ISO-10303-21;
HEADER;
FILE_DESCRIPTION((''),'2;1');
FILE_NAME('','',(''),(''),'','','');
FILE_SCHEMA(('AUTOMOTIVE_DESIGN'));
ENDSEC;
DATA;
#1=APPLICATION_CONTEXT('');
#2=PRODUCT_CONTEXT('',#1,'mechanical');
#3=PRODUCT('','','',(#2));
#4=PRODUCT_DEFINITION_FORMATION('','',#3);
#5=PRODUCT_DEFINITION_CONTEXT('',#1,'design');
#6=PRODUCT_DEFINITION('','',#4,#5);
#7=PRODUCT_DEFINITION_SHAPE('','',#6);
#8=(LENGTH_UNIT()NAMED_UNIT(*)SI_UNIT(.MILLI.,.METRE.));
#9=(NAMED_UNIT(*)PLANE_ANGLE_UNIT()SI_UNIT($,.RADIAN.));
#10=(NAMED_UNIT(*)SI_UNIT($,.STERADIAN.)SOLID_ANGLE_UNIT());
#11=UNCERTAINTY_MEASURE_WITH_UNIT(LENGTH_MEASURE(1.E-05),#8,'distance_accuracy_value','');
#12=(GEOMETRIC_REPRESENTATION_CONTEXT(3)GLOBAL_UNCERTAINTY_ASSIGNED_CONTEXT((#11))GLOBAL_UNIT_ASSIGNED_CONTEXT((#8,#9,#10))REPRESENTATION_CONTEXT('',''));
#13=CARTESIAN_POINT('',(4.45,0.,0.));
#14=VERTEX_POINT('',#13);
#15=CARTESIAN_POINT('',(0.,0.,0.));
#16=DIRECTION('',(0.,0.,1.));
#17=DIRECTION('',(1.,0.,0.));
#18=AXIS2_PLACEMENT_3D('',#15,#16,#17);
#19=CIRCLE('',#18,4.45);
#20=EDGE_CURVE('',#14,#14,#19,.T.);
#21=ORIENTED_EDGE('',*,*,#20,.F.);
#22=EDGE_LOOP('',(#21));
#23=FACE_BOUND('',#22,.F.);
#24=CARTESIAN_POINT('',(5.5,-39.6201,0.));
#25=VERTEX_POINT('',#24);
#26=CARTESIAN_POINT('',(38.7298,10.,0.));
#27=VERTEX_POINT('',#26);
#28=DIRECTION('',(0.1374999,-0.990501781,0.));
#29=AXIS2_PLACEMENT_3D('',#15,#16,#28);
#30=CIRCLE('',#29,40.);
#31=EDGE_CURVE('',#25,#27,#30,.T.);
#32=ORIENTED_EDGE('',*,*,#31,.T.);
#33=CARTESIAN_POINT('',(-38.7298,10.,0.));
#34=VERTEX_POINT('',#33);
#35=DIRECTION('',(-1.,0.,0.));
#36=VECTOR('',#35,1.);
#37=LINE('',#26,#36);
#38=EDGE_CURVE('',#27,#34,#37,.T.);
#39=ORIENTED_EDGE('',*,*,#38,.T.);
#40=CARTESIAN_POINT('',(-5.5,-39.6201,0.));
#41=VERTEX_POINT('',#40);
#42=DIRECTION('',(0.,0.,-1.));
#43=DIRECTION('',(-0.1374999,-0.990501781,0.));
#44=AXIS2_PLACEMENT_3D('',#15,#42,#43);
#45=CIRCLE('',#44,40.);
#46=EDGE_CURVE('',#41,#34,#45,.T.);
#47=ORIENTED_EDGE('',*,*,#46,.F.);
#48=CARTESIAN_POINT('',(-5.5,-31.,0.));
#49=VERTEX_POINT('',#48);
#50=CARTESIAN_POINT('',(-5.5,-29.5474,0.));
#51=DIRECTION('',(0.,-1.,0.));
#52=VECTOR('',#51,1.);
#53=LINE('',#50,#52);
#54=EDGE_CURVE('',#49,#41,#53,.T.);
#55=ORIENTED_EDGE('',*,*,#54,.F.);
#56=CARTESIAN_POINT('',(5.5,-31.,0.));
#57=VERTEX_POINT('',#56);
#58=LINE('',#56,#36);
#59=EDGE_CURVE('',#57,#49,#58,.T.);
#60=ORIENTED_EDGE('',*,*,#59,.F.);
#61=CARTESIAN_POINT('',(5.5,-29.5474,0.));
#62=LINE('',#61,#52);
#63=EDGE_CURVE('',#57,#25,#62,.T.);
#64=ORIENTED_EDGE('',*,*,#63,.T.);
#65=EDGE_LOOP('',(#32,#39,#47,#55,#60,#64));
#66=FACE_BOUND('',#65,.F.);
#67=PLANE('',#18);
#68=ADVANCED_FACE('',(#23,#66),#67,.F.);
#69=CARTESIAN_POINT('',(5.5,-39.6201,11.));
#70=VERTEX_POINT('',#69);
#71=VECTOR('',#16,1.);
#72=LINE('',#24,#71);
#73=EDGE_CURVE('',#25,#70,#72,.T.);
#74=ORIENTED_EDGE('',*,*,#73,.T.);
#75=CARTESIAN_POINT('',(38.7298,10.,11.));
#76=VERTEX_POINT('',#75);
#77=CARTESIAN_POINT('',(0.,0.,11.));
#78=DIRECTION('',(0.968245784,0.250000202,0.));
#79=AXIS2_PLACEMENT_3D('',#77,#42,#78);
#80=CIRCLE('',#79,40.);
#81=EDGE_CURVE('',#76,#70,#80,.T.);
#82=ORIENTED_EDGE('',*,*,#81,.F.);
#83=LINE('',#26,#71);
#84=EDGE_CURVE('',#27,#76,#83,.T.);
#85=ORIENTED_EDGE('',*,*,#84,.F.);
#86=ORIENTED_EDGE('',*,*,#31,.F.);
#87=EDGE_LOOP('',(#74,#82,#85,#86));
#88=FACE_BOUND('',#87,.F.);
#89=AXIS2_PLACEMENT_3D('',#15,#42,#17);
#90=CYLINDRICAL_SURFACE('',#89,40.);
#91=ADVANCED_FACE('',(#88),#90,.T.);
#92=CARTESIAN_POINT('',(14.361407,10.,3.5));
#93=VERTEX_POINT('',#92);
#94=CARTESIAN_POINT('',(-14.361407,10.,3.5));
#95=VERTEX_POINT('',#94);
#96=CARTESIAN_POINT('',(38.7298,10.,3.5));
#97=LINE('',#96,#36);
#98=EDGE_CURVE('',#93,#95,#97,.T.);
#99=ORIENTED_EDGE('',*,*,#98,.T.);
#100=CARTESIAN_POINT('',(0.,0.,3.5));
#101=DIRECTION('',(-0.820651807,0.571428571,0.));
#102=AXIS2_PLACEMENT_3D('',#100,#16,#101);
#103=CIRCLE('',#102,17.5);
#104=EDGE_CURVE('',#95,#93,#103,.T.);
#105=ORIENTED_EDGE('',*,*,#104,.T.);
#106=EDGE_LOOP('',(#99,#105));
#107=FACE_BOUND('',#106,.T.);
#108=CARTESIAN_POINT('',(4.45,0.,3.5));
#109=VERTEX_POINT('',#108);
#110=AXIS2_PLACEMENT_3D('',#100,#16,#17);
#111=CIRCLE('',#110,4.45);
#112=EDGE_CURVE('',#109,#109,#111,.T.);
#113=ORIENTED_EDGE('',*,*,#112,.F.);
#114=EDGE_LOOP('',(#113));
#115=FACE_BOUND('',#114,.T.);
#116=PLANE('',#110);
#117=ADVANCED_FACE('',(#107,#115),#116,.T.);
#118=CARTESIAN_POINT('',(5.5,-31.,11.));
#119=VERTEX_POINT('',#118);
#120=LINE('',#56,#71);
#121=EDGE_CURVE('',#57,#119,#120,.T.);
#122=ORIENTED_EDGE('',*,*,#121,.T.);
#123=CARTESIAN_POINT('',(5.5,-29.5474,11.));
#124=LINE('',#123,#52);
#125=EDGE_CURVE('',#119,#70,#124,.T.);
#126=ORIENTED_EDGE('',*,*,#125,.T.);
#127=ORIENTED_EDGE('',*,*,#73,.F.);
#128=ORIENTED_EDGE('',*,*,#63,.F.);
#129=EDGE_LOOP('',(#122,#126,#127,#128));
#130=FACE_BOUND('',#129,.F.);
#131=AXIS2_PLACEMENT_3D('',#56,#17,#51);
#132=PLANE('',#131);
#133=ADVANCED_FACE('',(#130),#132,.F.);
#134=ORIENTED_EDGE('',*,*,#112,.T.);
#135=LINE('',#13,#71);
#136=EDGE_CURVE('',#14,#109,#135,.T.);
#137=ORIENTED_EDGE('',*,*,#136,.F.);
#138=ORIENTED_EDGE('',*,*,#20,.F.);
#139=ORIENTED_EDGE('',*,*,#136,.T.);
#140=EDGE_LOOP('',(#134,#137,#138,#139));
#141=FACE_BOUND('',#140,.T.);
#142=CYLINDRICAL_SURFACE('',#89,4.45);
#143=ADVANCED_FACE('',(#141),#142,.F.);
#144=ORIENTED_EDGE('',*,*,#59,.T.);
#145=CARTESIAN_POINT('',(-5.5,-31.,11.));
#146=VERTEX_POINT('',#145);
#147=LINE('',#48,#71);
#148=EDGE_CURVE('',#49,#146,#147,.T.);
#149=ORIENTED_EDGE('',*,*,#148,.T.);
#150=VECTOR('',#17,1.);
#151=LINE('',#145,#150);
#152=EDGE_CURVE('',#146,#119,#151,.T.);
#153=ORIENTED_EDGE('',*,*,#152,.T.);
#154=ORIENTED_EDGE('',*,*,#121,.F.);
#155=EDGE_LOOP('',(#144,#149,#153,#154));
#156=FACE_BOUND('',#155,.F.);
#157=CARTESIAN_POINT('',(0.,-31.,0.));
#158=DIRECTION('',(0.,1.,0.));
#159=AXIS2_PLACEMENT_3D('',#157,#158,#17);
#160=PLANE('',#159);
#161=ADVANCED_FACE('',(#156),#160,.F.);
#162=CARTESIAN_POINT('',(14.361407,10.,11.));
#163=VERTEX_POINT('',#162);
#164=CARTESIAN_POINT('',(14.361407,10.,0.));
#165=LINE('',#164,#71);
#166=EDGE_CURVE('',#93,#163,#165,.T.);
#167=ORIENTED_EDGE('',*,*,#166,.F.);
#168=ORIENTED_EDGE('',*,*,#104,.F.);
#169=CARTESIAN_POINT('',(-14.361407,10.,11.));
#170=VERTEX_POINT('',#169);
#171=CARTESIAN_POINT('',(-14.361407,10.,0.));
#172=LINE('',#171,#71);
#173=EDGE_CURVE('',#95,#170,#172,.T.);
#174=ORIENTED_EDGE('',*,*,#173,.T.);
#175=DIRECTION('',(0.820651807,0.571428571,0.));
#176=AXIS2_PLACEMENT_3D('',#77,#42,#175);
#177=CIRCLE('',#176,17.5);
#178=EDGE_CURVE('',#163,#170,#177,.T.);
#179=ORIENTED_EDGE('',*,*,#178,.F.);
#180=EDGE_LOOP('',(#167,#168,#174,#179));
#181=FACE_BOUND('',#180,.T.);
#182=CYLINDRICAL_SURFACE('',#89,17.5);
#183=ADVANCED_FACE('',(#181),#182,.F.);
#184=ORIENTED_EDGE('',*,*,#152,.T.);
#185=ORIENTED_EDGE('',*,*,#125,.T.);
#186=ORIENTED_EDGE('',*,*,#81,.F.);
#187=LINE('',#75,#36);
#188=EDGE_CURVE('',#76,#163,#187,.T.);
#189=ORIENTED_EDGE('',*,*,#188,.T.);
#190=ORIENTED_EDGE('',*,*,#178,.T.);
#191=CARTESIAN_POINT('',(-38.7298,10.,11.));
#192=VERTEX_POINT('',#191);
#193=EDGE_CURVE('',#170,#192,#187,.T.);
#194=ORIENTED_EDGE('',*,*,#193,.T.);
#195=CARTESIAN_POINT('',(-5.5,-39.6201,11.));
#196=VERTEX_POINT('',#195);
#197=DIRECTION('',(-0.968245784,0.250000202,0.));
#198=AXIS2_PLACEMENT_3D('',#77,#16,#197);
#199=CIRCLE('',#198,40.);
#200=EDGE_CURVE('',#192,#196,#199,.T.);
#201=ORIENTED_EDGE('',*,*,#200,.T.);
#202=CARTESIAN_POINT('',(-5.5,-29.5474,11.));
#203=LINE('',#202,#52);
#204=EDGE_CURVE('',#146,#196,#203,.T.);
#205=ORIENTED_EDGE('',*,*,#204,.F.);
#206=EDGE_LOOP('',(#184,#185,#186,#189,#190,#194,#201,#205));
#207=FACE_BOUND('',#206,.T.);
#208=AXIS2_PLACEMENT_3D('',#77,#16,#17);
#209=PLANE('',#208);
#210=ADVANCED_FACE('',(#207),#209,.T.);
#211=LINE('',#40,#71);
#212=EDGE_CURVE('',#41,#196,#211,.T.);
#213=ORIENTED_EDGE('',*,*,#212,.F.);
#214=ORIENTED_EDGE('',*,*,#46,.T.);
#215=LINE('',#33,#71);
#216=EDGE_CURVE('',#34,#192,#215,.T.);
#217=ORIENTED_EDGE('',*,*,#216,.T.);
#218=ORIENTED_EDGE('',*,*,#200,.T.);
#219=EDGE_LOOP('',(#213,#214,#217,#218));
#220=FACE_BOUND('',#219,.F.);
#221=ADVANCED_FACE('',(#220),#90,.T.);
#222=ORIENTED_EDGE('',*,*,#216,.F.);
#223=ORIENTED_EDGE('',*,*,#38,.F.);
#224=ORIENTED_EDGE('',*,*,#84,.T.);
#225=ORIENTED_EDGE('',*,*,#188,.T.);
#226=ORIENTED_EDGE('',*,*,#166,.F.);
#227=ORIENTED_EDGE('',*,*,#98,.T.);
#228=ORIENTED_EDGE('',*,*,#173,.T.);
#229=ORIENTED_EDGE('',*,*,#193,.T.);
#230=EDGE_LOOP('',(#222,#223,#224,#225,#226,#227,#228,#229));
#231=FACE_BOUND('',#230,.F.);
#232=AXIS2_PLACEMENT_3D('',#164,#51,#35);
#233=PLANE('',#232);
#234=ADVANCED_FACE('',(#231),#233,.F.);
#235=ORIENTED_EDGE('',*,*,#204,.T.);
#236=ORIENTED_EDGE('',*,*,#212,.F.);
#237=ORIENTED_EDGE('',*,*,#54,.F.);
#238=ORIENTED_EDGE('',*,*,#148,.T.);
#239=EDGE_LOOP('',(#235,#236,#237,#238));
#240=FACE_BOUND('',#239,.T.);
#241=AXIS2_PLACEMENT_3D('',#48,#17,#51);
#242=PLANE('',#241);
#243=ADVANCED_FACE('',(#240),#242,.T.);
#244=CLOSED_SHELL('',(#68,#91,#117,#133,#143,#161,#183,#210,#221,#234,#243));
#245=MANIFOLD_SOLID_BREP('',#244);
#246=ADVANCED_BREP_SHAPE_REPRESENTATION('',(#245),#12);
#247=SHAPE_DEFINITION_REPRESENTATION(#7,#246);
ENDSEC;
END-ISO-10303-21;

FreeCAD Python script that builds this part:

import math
import FreeCAD as App
import Part
import Sketcher
Q = App.Units.Quantity

doc = App.newDocument("Part")
body = doc.addObject("PartDesign::Body", "Body")

# Sketch on XY plane
sketch1 = body.newObject("Sketcher::SketchObject", "Sketch")
sketch1.AttachmentSupport = (doc.getObject("XY_Plane"), [""])
sketch1.MapMode = "FlatFace"
sketch1.addGeometry([
    Part.ArcOfCircle(Part.Circle(App.Vector(0, 0, 0), App.Vector(0, 0, 1), 17.5), math.radians(145), math.radians(395)),
    Part.LineSegment(App.Vector(14.4, 10, 0), App.Vector(-14.4, 10, 0)),
    Part.Circle(App.Vector(0, 0, 0), App.Vector(0, 0, 1), 4.5),
], False)
sketch1.addConstraint([
    Sketcher.Constraint("Coincident", 0, 1, 1, 2),
    Sketcher.Constraint("Coincident", 1, 1, 0, 2),
    Sketcher.Constraint("Horizontal", 1),
    Sketcher.Constraint("Coincident", 0, 3, -1, 1),
    Sketcher.Constraint("Coincident", 2, 3, -1, 1),
    Sketcher.Constraint("Diameter", 2, Q("8.9 mm")),
    Sketcher.Constraint("Radius", 0, Q("17.5 mm")),
    Sketcher.Constraint("DistanceY", -1, 1, 0, 1, Q("10 mm")),
])
pad1 = body.newObject("PartDesign::Pad", "Pad")
pad1.Profile = sketch1
pad1.Length = 3.5

# Sketch on XY plane
sketch2 = body.newObject("Sketcher::SketchObject", "Sketch001")
sketch2.AttachmentSupport = (doc.getObject("XY_Plane"), [""])
sketch2.MapMode = "FlatFace"
sketch2.addGeometry([
    Part.ArcOfCircle(Part.Circle(App.Vector(0, 0, 0), App.Vector(0, 0, 1), 40), math.radians(-82), math.radians(14)),  # 0
    Part.LineSegment(App.Vector(39, 10, 0), App.Vector(14, 10, 0)),  # 1
    Part.ArcOfCircle(Part.Circle(App.Vector(0, 0, 0), App.Vector(0, 0, 1), 18), math.radians(145), math.radians(395)),  # 2
    Part.LineSegment(App.Vector(-14, 10, 0), App.Vector(-39, 10, 0)),  # 3
    Part.ArcOfCircle(Part.Circle(App.Vector(0, 0, 0), App.Vector(0, 0, 1), 40), math.radians(166), math.radians(262)),  # 4
    Part.LineSegment(App.Vector(-6, -40, 0), App.Vector(-6, -31, 0)),  # 5
    Part.LineSegment(App.Vector(-6, -31, 0), App.Vector(6, -31, 0)),  # 6
    Part.LineSegment(App.Vector(6, -31, 0), App.Vector(6, -40, 0)),  # 7
], False)
sketch2.addConstraint([
    Sketcher.Constraint("Coincident", 0, 2, 1, 1),
    Sketcher.Constraint("Coincident", 1, 2, 2, 2),
    Sketcher.Constraint("Coincident", 2, 1, 3, 1),
    Sketcher.Constraint("Coincident", 3, 2, 4, 1),
    Sketcher.Constraint("Coincident", 4, 2, 5, 1),
    Sketcher.Constraint("Coincident", 5, 2, 6, 1),
    Sketcher.Constraint("Coincident", 6, 2, 7, 1),
    Sketcher.Constraint("Coincident", 7, 2, 0, 1),
    Sketcher.Constraint("Horizontal", 1),
    Sketcher.Constraint("Horizontal", 3),
    Sketcher.Constraint("Vertical", 5),
    Sketcher.Constraint("Horizontal", 6),
    Sketcher.Constraint("Vertical", 7),
    Sketcher.Constraint("Coincident", 0, 3, -1, 1),
    Sketcher.Constraint("Coincident", 2, 3, -1, 1),
    Sketcher.Constraint("Coincident", 4, 3, -1, 1),
    Sketcher.Constraint("Equal", 0, 4),
    Sketcher.Constraint("Horizontal", 1, 2, 2, 1),
    Sketcher.Constraint("Horizontal", 4, 2, 7, 2),
    Sketcher.Constraint("Radius", 0, Q("40 mm")),
    Sketcher.Constraint("Radius", 2, Q("17.5 mm")),
    Sketcher.Constraint("DistanceY", -1, 1, 0, 2, Q("10 mm")),
    Sketcher.Constraint("DistanceX", 6, 1, 6, 2, Q("11 mm")),
    Sketcher.Constraint("DistanceY", 5, 2, -1, 1, Q("31 mm")),
])
pad2 = body.newObject("PartDesign::Pad", "Pad001")
pad2.Profile = sketch2
pad2.Length = 11

doc.recompute()
